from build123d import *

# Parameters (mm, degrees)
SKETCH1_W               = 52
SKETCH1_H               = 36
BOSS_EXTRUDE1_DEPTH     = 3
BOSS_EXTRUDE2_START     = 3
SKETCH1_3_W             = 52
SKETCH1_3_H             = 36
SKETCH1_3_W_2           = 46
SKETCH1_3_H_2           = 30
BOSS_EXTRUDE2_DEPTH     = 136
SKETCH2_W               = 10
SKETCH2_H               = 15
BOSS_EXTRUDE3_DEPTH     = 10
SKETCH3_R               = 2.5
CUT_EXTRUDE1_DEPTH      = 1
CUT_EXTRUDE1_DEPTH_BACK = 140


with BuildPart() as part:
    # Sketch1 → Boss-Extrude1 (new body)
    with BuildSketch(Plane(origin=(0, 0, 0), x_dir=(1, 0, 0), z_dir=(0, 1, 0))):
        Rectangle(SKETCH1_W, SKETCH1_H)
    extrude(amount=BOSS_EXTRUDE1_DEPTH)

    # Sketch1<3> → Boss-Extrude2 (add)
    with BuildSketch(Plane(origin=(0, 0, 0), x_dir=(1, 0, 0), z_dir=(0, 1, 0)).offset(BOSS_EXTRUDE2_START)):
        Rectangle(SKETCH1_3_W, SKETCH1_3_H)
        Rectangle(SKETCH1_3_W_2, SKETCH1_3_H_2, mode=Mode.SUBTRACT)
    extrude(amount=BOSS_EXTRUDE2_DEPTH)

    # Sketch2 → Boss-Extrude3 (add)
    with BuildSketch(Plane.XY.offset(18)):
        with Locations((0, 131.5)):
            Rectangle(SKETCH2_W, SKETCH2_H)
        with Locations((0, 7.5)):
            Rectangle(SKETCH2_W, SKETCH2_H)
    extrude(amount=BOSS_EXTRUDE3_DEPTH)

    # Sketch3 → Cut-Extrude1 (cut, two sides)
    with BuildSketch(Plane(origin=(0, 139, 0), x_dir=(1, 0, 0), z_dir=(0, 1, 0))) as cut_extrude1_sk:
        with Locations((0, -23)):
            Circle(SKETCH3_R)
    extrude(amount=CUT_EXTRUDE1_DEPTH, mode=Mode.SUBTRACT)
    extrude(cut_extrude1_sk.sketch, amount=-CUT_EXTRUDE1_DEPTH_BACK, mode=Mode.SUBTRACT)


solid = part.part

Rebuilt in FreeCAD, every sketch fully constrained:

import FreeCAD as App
import Part
import Sketcher
from FreeCAD import Vector

doc = App.newDocument("Part")
body = doc.addObject("PartDesign::Body", "Body")

# Sketch on XZ plane
sketch1 = doc.addObject("Sketcher::SketchObject", "Sketch")
body.addObject(sketch1)
sketch1.AttachmentSupport = (doc.XZ_Plane, [""])
sketch1.MapMode = "FlatFace"
sketch1.addGeometry(Part.LineSegment(Vector(-26, -18, 0), Vector(-26, 18, 0)), False)
sketch1.addGeometry(Part.LineSegment(Vector(-26, 18, 0), Vector(26, 18, 0)), False)
sketch1.addGeometry(Part.LineSegment(Vector(26, 18, 0), Vector(26, -18, 0)), False)
sketch1.addGeometry(Part.LineSegment(Vector(26, -18, 0), Vector(-26, -18, 0)), False)
sketch1.addConstraint(Sketcher.Constraint("Coincident", 0, 2, 1, 1))
sketch1.addConstraint(Sketcher.Constraint("Coincident", 1, 2, 2, 1))
sketch1.addConstraint(Sketcher.Constraint("Coincident", 2, 2, 3, 1))
sketch1.addConstraint(Sketcher.Constraint("Coincident", 3, 2, 0, 1))
sketch1.addConstraint(Sketcher.Constraint("Vertical", 0))
sketch1.addConstraint(Sketcher.Constraint("Horizontal", 1))
sketch1.addConstraint(Sketcher.Constraint("Vertical", 2))
sketch1.addConstraint(Sketcher.Constraint("Horizontal", 3))
sketch1.addConstraint(Sketcher.Constraint("Symmetric", 0, 2, 2, 2, -1, 1))
sketch1.addConstraint(Sketcher.Constraint("DistanceX", 1, 1, 1, 2, 52.0))
sketch1.addConstraint(Sketcher.Constraint("DistanceY", 0, 1, 0, 2, 36.0))
pad1 = doc.addObject("PartDesign::Pad", "Pad")
body.addObject(pad1)
pad1.Profile = sketch1
pad1.Length = 3
pad1.Reversed = True

# Sketch on XZ plane
sketch2 = doc.addObject("Sketcher::SketchObject", "Sketch001")
body.addObject(sketch2)
sketch2.AttachmentSupport = (doc.XZ_Plane, [""])
sketch2.MapMode = "FlatFace"
sketch2.AttachmentOffset = App.Placement(Vector(0, 0, -3), App.Rotation())
sketch2.addGeometry(Part.LineSegment(Vector(-26, -18, 0), Vector(-26, 18, 0)), False)
sketch2.addGeometry(Part.LineSegment(Vector(-26, 18, 0), Vector(26, 18, 0)), False)
sketch2.addGeometry(Part.LineSegment(Vector(26, 18, 0), Vector(26, -18, 0)), False)
sketch2.addGeometry(Part.LineSegment(Vector(26, -18, 0), Vector(-26, -18, 0)), False)
sketch2.addGeometry(Part.LineSegment(Vector(23, 15, 0), Vector(-23, 15, 0)), False)
sketch2.addGeometry(Part.LineSegment(Vector(-23, 15, 0), Vector(-23, -15, 0)), False)
sketch2.addGeometry(Part.LineSegment(Vector(-23, -15, 0), Vector(23, -15, 0)), False)
sketch2.addGeometry(Part.LineSegment(Vector(23, -15, 0), Vector(23, 15, 0)), False)
sketch2.addConstraint(Sketcher.Constraint("Coincident", 0, 2, 1, 1))
sketch2.addConstraint(Sketcher.Constraint("Coincident", 1, 2, 2, 1))
sketch2.addConstraint(Sketcher.Constraint("Coincident", 2, 2, 3, 1))
sketch2.addConstraint(Sketcher.Constraint("Coincident", 3, 2, 0, 1))
sketch2.addConstraint(Sketcher.Constraint("Coincident", 4, 2, 5, 1))
sketch2.addConstraint(Sketcher.Constraint("Coincident", 5, 2, 6, 1))
sketch2.addConstraint(Sketcher.Constraint("Coincident", 6, 2, 7, 1))
sketch2.addConstraint(Sketcher.Constraint("Coincident", 7, 2, 4, 1))
sketch2.addConstraint(Sketcher.Constraint("Vertical", 0))
sketch2.addConstraint(Sketcher.Constraint("Horizontal", 1))
sketch2.addConstraint(Sketcher.Constraint("Vertical", 2))
sketch2.addConstraint(Sketcher.Constraint("Horizontal", 3))
sketch2.addConstraint(Sketcher.Constraint("Horizontal", 4))
sketch2.addConstraint(Sketcher.Constraint("Vertical", 5))
sketch2.addConstraint(Sketcher.Constraint("Horizontal", 6))
sketch2.addConstraint(Sketcher.Constraint("Vertical", 7))
sketch2.addConstraint(Sketcher.Constraint("Symmetric", 0, 2, 2, 2, -1, 1))
sketch2.addConstraint(Sketcher.Constraint("Symmetric", 4, 2, 6, 2, -1, 1))
sketch2.addConstraint(Sketcher.Constraint("DistanceX", 1, 1, 1, 2, 52.0))
sketch2.addConstraint(Sketcher.Constraint("DistanceX", 4, 2, 4, 1, 46.0))
sketch2.addConstraint(Sketcher.Constraint("DistanceY", 0, 1, 0, 2, 36.0))
sketch2.addConstraint(Sketcher.Constraint("DistanceY", 5, 2, 5, 1, 30.0))
pad2 = doc.addObject("PartDesign::Pad", "Pad001")
body.addObject(pad2)
pad2.Profile = sketch2
pad2.Length = 136
pad2.Reversed = True

# Sketch on XY plane
sketch3 = doc.addObject("Sketcher::SketchObject", "Sketch002")
body.addObject(sketch3)
sketch3.AttachmentSupport = (doc.XY_Plane, [""])
sketch3.MapMode = "FlatFace"
sketch3.AttachmentOffset = App.Placement(Vector(0, 0, 18), App.Rotation())
sketch3.addGeometry(Part.LineSegment(Vector(-5, 139, 0), Vector(-5, 124, 0)), False)
sketch3.addGeometry(Part.LineSegment(Vector(-5, 124, 0), Vector(5, 124, 0)), False)
sketch3.addGeometry(Part.LineSegment(Vector(5, 124, 0), Vector(5, 139, 0)), False)
sketch3.addGeometry(Part.LineSegment(Vector(5, 139, 0), Vector(-5, 139, 0)), False)
sketch3.addGeometry(Part.LineSegment(Vector(-5, 15, 0), Vector(-5, 0, 0)), False)
sketch3.addGeometry(Part.LineSegment(Vector(-5, 0, 0), Vector(5, 0, 0)), False)
sketch3.addGeometry(Part.LineSegment(Vector(5, 0, 0), Vector(5, 15, 0)), False)
sketch3.addGeometry(Part.LineSegment(Vector(5, 15, 0), Vector(-5, 15, 0)), False)
sketch3.addConstraint(Sketcher.Constraint("Coincident", 0, 2, 1, 1))
sketch3.addConstraint(Sketcher.Constraint("Coincident", 1, 2, 2, 1))
sketch3.addConstraint(Sketcher.Constraint("Coincident", 2, 2, 3, 1))
sketch3.addConstraint(Sketcher.Constraint("Coincident", 3, 2, 0, 1))
sketch3.addConstraint(Sketcher.Constraint("Coincident", 4, 2, 5, 1))
sketch3.addConstraint(Sketcher.Constraint("Coincident", 5, 2, 6, 1))
sketch3.addConstraint(Sketcher.Constraint("Coincident", 6, 2, 7, 1))
sketch3.addConstraint(Sketcher.Constraint("Coincident", 7, 2, 4, 1))
sketch3.addConstraint(Sketcher.Constraint("Vertical", 0))
sketch3.addConstraint(Sketcher.Constraint("Horizontal", 1))
sketch3.addConstraint(Sketcher.Constraint("Vertical", 2))
sketch3.addConstraint(Sketcher.Constraint("Horizontal", 3))
sketch3.addConstraint(Sketcher.Constraint("Vertical", 4))
sketch3.addConstraint(Sketcher.Constraint("Horizontal", 5))
sketch3.addConstraint(Sketcher.Constraint("Vertical", 6))
sketch3.addConstraint(Sketcher.Constraint("Horizontal", 7))
sketch3.addConstraint(Sketcher.Constraint("Symmetric", 4, 2, 5, 2, -1, 1))
sketch3.addConstraint(Sketcher.Constraint("Vertical", 3, 2, 4, 2))
sketch3.addConstraint(Sketcher.Constraint("Vertical", 2, 2, 5, 2))
sketch3.addConstraint(Sketcher.Constraint("Equal", 2, 4))
sketch3.addConstraint(Sketcher.Constraint("DistanceX", 1, 1, 1, 2, 10.0))
sketch3.addConstraint(Sketcher.Constraint("DistanceY", 0, 2, 0, 1, 15.0))
sketch3.addConstraint(Sketcher.Constraint("DistanceY", -1, 1, 0, 2, 124.0))
pad3 = doc.addObject("PartDesign::Pad", "Pad002")
body.addObject(pad3)
pad3.Profile = sketch3
pad3.Length = 10

# Sketch on XZ plane
sketch4 = doc.addObject("Sketcher::SketchObject", "Sketch003")
body.addObject(sketch4)
sketch4.AttachmentSupport = (doc.XZ_Plane, [""])
sketch4.MapMode = "FlatFace"
sketch4.AttachmentOffset = App.Placement(Vector(0, 0, -139), App.Rotation())
sketch4.addGeometry(Part.Circle(Vector(0, 23, 0), Vector(0, 0, 1), 2.5), False)
sketch4.addConstraint(Sketcher.Constraint("PointOnObject", 0, 3, -2))
sketch4.addConstraint(Sketcher.Constraint("Diameter", 0, 5.0))
sketch4.addConstraint(Sketcher.Constraint("DistanceY", -1, 1, 0, 3, 23.0))
pocket1 = doc.addObject("PartDesign::Pocket", "Pocket")
body.addObject(pocket1)
pocket1.Profile = sketch4
pocket1.Type = "ThroughAll"
pocket1.Midplane = True

doc.recompute()
